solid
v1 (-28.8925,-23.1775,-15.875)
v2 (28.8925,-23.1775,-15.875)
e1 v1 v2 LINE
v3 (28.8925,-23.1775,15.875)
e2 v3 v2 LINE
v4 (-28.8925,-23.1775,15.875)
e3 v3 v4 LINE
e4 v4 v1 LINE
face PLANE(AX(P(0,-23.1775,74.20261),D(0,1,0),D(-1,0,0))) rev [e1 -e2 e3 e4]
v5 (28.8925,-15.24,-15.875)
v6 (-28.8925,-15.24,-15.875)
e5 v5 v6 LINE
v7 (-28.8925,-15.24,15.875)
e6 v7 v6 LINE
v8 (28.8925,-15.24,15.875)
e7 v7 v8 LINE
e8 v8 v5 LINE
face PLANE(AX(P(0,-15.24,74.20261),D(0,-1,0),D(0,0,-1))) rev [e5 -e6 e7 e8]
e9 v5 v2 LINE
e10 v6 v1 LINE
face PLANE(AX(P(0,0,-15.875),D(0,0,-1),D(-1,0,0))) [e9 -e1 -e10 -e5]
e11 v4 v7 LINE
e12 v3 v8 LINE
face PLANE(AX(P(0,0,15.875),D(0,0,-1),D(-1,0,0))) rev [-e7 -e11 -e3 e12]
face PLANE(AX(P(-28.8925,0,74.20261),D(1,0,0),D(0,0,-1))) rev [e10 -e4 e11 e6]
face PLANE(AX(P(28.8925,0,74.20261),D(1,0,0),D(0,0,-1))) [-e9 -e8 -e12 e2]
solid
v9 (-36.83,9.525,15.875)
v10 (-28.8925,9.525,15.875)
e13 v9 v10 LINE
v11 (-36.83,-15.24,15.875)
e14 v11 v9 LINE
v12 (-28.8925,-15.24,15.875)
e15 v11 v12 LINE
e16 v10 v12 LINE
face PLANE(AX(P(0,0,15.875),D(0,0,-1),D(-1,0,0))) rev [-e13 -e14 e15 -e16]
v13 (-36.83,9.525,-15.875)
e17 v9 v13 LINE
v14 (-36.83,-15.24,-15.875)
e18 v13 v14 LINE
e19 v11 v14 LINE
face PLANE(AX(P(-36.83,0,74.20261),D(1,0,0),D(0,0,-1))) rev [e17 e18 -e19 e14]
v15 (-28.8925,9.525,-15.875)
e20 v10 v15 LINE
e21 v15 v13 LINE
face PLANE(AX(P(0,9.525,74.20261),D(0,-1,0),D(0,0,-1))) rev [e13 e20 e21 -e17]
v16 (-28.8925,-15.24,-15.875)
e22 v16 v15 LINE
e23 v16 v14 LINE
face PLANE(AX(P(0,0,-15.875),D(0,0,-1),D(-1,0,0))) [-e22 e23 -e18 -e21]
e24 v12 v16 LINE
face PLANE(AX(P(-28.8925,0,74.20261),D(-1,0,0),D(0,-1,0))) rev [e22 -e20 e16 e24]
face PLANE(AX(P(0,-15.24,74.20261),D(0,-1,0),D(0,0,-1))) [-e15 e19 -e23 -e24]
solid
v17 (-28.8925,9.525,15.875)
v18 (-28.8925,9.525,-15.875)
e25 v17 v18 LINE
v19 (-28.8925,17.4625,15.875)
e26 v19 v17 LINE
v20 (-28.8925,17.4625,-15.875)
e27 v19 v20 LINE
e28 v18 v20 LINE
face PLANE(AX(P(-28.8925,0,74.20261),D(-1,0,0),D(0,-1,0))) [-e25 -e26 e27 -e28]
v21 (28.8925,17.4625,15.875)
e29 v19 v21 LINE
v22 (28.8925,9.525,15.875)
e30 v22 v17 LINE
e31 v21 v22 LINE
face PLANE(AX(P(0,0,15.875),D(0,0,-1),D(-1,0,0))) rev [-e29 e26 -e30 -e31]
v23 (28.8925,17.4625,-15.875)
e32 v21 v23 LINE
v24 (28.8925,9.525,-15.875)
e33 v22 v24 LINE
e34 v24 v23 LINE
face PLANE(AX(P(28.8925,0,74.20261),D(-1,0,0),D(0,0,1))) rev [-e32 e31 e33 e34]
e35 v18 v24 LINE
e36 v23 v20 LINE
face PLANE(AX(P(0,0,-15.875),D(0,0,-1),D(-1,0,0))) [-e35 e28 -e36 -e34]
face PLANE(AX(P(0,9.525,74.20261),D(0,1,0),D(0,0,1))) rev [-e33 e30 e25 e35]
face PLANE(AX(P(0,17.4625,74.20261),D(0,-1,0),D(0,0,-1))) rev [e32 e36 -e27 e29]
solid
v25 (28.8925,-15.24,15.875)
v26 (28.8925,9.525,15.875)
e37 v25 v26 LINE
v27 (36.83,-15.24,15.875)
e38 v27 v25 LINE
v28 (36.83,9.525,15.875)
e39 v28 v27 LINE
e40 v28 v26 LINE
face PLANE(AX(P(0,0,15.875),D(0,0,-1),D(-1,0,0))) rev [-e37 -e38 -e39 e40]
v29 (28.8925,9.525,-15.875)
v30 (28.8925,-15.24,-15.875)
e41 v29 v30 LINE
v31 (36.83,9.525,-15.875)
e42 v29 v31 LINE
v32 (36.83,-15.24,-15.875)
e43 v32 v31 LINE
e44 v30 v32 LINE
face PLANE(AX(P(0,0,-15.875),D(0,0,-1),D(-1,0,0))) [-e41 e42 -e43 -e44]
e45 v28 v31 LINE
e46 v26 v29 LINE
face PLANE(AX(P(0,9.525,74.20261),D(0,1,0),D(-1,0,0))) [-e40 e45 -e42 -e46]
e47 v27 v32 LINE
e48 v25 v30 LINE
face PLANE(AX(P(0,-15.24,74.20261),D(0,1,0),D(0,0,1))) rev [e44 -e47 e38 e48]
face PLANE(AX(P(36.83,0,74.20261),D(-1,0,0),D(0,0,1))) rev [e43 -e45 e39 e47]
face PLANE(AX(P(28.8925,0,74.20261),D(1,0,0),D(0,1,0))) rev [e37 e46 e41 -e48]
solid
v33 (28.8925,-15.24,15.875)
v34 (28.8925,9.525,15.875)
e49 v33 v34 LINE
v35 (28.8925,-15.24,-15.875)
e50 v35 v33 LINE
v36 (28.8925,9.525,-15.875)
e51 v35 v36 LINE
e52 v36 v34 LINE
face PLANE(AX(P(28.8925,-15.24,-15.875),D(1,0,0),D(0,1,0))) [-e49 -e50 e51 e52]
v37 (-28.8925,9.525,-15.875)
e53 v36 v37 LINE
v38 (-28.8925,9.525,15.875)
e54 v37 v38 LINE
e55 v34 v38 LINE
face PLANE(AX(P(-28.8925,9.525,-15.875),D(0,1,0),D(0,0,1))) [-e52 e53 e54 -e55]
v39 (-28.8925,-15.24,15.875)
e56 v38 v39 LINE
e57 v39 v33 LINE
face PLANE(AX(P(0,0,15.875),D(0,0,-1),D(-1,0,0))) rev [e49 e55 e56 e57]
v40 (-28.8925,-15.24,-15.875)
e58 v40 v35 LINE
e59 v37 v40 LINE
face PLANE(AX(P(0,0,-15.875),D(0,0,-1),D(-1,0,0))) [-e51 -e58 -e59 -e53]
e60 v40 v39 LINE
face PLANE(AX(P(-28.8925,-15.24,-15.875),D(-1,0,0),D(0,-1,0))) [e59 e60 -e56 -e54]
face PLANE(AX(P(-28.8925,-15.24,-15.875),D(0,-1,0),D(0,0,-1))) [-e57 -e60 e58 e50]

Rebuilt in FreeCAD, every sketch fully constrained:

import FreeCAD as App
import Part
import Sketcher
Q = App.Units.Quantity

doc = App.newDocument("Part")
body = doc.addObject("PartDesign::Body", "Body")

# Sketch on XY plane
sketch1 = body.newObject("Sketcher::SketchObject", "Sketch")
sketch1.AttachmentSupport = (doc.getObject("XY_Plane"), [""])
sketch1.MapMode = "FlatFace"
sketch1.addGeometry([
    Part.LineSegment(App.Vector(-29, 10, 0), App.Vector(-29, -15, 0)),
    Part.LineSegment(App.Vector(-29, -15, 0), App.Vector(29, -15, 0)),
    Part.LineSegment(App.Vector(29, -15, 0), App.Vector(29, 10, 0)),
    Part.LineSegment(App.Vector(29, 10, 0), App.Vector(-29, 10, 0)),
], False)
sketch1.addConstraint([
    Sketcher.Constraint("Coincident", 0, 2, 1, 1),
    Sketcher.Constraint("Coincident", 1, 2, 2, 1),
    Sketcher.Constraint("Coincident", 2, 2, 3, 1),
    Sketcher.Constraint("Coincident", 3, 2, 0, 1),
    Sketcher.Constraint("Vertical", 0),
    Sketcher.Constraint("Horizontal", 1),
    Sketcher.Constraint("Vertical", 2),
    Sketcher.Constraint("Horizontal", 3),
    Sketcher.Constraint("DistanceY", 0, 2, -1, 1, Q("0.6 in")),
    Sketcher.Constraint("DistanceX", 1, 1, 1, 2, Q("2.275 in")),
    Sketcher.Constraint("DistanceY", 0, 2, 0, 1, Q("0.975 in")),
    Sketcher.Constraint("DistanceX", 0, 2, -1, 1, Q("1.1375 in")),
])
pad1 = body.newObject("PartDesign::Pad", "Pad")
pad1.Profile = sketch1
pad1.Length = Q("1.25 in")
pad1.Midplane = True
body2 = doc.addObject("PartDesign::Body", "Body001")
body2.AllowCompound = True

# Sketch on XY plane
sketch2 = body2.newObject("Sketcher::SketchObject", "Sketch001")
sketch2.AttachmentSupport = (doc.getObject("XY_Plane001"), [""])
sketch2.MapMode = "FlatFace"
sketch2.AttachmentOffset = App.Placement(App.Vector(0, 0, -0.625 * 25.4), App.Rotation())
sketch2.addGeometry([
    Part.LineSegment(App.Vector(37, 10, 0), App.Vector(37, -15, 0)),  # 0
    Part.LineSegment(App.Vector(37, -15, 0), App.Vector(29, -15, 0)),  # 1
    Part.LineSegment(App.Vector(29, -15, 0), App.Vector(29, 10, 0)),  # 2
    Part.LineSegment(App.Vector(29, 10, 0), App.Vector(37, 10, 0)),  # 3
    Part.LineSegment(App.Vector(29, -15, 0), App.Vector(29, -23, 0)),  # 4
    Part.LineSegment(App.Vector(29, -23, 0), App.Vector(-29, -23, 0)),  # 5
    Part.LineSegment(App.Vector(-29, -23, 0), App.Vector(-29, -15, 0)),  # 6
    Part.LineSegment(App.Vector(-29, -15, 0), App.Vector(29, -15, 0)),  # 7
    Part.LineSegment(App.Vector(29, 17, 0), App.Vector(29, 10, 0)),  # 8
    Part.LineSegment(App.Vector(29, 10, 0), App.Vector(-29, 10, 0)),  # 9
    Part.LineSegment(App.Vector(-29, 10, 0), App.Vector(-29, 17, 0)),  # 10
    Part.LineSegment(App.Vector(-29, 17, 0), App.Vector(29, 17, 0)),  # 11
    Part.LineSegment(App.Vector(-29, 10, 0), App.Vector(-29, -15, 0)),  # 12
    Part.LineSegment(App.Vector(-29, -15, 0), App.Vector(-37, -15, 0)),  # 13
    Part.LineSegment(App.Vector(-37, -15, 0), App.Vector(-37, 10, 0)),  # 14
    Part.LineSegment(App.Vector(-37, 10, 0), App.Vector(-29, 10, 0)),  # 15
], False)
sketch2.addConstraint([
    Sketcher.Constraint("Coincident", 0, 2, 1, 1),
    Sketcher.Constraint("Coincident", 1, 2, 2, 1),
    Sketcher.Constraint("Coincident", 2, 2, 3, 1),
    Sketcher.Constraint("Coincident", 3, 2, 0, 1),
    Sketcher.Constraint("Coincident", 4, 2, 5, 1),
    Sketcher.Constraint("Coincident", 5, 2, 6, 1),
    Sketcher.Constraint("Coincident", 6, 2, 7, 1),
    Sketcher.Constraint("Coincident", 7, 2, 4, 1),
    Sketcher.Constraint("Coincident", 8, 2, 9, 1),
    Sketcher.Constraint("Coincident", 9, 2, 10, 1),
    Sketcher.Constraint("Coincident", 10, 2, 11, 1),
    Sketcher.Constraint("Coincident", 11, 2, 8, 1),
    Sketcher.Constraint("Coincident", 12, 2, 13, 1),
    Sketcher.Constraint("Coincident", 13, 2, 14, 1),
    Sketcher.Constraint("Coincident", 14, 2, 15, 1),
    Sketcher.Constraint("Coincident", 15, 2, 12, 1),
    Sketcher.Constraint("Vertical", 0),
    Sketcher.Constraint("Horizontal", 1),
    Sketcher.Constraint("Vertical", 2),
    Sketcher.Constraint("Horizontal", 3),
    Sketcher.Constraint("Vertical", 4),
    Sketcher.Constraint("Horizontal", 5),
    Sketcher.Constraint("Vertical", 6),
    Sketcher.Constraint("Horizontal", 7),
    Sketcher.Constraint("Vertical", 8),
    Sketcher.Constraint("Horizontal", 9),
    Sketcher.Constraint("Vertical", 10),
    Sketcher.Constraint("Horizontal", 11),
    Sketcher.Constraint("Vertical", 12),
    Sketcher.Constraint("Horizontal", 13),
    Sketcher.Constraint("Vertical", 14),
    Sketcher.Constraint("Horizontal", 15),
    Sketcher.Constraint("Coincident", 7, 2, 1, 2),
    Sketcher.Constraint("Coincident", 8, 2, 2, 2),
    Sketcher.Constraint("Coincident", 12, 2, 6, 2),
    Sketcher.Constraint("Coincident", 15, 2, 9, 2),
    Sketcher.Constraint("Equal", 3, 13),
    Sketcher.Constraint("Equal", 15, 4),
    Sketcher.Constraint("Equal", 6, 8),
    Sketcher.Constraint("DistanceY", 0, 2, -1, 1, Q("0.6 in")),
    Sketcher.Constraint("DistanceY", 5, 2, 10, 2, Q("1.6 in")),
    Sketcher.Constraint("DistanceX", 1, 2, 1, 1, Q("0.3125 in")),
    Sketcher.Constraint("DistanceX", 5, 2, 5, 1, Q("2.275 in")),
    Sketcher.Constraint("DistanceX", -1, 1, 0, 2, Q("1.45 in")),
])
pad2 = body2.newObject("PartDesign::Pad", "Pad001")
pad2.Profile = sketch2
pad2.Length = Q("1.25 in")

doc.recompute()
